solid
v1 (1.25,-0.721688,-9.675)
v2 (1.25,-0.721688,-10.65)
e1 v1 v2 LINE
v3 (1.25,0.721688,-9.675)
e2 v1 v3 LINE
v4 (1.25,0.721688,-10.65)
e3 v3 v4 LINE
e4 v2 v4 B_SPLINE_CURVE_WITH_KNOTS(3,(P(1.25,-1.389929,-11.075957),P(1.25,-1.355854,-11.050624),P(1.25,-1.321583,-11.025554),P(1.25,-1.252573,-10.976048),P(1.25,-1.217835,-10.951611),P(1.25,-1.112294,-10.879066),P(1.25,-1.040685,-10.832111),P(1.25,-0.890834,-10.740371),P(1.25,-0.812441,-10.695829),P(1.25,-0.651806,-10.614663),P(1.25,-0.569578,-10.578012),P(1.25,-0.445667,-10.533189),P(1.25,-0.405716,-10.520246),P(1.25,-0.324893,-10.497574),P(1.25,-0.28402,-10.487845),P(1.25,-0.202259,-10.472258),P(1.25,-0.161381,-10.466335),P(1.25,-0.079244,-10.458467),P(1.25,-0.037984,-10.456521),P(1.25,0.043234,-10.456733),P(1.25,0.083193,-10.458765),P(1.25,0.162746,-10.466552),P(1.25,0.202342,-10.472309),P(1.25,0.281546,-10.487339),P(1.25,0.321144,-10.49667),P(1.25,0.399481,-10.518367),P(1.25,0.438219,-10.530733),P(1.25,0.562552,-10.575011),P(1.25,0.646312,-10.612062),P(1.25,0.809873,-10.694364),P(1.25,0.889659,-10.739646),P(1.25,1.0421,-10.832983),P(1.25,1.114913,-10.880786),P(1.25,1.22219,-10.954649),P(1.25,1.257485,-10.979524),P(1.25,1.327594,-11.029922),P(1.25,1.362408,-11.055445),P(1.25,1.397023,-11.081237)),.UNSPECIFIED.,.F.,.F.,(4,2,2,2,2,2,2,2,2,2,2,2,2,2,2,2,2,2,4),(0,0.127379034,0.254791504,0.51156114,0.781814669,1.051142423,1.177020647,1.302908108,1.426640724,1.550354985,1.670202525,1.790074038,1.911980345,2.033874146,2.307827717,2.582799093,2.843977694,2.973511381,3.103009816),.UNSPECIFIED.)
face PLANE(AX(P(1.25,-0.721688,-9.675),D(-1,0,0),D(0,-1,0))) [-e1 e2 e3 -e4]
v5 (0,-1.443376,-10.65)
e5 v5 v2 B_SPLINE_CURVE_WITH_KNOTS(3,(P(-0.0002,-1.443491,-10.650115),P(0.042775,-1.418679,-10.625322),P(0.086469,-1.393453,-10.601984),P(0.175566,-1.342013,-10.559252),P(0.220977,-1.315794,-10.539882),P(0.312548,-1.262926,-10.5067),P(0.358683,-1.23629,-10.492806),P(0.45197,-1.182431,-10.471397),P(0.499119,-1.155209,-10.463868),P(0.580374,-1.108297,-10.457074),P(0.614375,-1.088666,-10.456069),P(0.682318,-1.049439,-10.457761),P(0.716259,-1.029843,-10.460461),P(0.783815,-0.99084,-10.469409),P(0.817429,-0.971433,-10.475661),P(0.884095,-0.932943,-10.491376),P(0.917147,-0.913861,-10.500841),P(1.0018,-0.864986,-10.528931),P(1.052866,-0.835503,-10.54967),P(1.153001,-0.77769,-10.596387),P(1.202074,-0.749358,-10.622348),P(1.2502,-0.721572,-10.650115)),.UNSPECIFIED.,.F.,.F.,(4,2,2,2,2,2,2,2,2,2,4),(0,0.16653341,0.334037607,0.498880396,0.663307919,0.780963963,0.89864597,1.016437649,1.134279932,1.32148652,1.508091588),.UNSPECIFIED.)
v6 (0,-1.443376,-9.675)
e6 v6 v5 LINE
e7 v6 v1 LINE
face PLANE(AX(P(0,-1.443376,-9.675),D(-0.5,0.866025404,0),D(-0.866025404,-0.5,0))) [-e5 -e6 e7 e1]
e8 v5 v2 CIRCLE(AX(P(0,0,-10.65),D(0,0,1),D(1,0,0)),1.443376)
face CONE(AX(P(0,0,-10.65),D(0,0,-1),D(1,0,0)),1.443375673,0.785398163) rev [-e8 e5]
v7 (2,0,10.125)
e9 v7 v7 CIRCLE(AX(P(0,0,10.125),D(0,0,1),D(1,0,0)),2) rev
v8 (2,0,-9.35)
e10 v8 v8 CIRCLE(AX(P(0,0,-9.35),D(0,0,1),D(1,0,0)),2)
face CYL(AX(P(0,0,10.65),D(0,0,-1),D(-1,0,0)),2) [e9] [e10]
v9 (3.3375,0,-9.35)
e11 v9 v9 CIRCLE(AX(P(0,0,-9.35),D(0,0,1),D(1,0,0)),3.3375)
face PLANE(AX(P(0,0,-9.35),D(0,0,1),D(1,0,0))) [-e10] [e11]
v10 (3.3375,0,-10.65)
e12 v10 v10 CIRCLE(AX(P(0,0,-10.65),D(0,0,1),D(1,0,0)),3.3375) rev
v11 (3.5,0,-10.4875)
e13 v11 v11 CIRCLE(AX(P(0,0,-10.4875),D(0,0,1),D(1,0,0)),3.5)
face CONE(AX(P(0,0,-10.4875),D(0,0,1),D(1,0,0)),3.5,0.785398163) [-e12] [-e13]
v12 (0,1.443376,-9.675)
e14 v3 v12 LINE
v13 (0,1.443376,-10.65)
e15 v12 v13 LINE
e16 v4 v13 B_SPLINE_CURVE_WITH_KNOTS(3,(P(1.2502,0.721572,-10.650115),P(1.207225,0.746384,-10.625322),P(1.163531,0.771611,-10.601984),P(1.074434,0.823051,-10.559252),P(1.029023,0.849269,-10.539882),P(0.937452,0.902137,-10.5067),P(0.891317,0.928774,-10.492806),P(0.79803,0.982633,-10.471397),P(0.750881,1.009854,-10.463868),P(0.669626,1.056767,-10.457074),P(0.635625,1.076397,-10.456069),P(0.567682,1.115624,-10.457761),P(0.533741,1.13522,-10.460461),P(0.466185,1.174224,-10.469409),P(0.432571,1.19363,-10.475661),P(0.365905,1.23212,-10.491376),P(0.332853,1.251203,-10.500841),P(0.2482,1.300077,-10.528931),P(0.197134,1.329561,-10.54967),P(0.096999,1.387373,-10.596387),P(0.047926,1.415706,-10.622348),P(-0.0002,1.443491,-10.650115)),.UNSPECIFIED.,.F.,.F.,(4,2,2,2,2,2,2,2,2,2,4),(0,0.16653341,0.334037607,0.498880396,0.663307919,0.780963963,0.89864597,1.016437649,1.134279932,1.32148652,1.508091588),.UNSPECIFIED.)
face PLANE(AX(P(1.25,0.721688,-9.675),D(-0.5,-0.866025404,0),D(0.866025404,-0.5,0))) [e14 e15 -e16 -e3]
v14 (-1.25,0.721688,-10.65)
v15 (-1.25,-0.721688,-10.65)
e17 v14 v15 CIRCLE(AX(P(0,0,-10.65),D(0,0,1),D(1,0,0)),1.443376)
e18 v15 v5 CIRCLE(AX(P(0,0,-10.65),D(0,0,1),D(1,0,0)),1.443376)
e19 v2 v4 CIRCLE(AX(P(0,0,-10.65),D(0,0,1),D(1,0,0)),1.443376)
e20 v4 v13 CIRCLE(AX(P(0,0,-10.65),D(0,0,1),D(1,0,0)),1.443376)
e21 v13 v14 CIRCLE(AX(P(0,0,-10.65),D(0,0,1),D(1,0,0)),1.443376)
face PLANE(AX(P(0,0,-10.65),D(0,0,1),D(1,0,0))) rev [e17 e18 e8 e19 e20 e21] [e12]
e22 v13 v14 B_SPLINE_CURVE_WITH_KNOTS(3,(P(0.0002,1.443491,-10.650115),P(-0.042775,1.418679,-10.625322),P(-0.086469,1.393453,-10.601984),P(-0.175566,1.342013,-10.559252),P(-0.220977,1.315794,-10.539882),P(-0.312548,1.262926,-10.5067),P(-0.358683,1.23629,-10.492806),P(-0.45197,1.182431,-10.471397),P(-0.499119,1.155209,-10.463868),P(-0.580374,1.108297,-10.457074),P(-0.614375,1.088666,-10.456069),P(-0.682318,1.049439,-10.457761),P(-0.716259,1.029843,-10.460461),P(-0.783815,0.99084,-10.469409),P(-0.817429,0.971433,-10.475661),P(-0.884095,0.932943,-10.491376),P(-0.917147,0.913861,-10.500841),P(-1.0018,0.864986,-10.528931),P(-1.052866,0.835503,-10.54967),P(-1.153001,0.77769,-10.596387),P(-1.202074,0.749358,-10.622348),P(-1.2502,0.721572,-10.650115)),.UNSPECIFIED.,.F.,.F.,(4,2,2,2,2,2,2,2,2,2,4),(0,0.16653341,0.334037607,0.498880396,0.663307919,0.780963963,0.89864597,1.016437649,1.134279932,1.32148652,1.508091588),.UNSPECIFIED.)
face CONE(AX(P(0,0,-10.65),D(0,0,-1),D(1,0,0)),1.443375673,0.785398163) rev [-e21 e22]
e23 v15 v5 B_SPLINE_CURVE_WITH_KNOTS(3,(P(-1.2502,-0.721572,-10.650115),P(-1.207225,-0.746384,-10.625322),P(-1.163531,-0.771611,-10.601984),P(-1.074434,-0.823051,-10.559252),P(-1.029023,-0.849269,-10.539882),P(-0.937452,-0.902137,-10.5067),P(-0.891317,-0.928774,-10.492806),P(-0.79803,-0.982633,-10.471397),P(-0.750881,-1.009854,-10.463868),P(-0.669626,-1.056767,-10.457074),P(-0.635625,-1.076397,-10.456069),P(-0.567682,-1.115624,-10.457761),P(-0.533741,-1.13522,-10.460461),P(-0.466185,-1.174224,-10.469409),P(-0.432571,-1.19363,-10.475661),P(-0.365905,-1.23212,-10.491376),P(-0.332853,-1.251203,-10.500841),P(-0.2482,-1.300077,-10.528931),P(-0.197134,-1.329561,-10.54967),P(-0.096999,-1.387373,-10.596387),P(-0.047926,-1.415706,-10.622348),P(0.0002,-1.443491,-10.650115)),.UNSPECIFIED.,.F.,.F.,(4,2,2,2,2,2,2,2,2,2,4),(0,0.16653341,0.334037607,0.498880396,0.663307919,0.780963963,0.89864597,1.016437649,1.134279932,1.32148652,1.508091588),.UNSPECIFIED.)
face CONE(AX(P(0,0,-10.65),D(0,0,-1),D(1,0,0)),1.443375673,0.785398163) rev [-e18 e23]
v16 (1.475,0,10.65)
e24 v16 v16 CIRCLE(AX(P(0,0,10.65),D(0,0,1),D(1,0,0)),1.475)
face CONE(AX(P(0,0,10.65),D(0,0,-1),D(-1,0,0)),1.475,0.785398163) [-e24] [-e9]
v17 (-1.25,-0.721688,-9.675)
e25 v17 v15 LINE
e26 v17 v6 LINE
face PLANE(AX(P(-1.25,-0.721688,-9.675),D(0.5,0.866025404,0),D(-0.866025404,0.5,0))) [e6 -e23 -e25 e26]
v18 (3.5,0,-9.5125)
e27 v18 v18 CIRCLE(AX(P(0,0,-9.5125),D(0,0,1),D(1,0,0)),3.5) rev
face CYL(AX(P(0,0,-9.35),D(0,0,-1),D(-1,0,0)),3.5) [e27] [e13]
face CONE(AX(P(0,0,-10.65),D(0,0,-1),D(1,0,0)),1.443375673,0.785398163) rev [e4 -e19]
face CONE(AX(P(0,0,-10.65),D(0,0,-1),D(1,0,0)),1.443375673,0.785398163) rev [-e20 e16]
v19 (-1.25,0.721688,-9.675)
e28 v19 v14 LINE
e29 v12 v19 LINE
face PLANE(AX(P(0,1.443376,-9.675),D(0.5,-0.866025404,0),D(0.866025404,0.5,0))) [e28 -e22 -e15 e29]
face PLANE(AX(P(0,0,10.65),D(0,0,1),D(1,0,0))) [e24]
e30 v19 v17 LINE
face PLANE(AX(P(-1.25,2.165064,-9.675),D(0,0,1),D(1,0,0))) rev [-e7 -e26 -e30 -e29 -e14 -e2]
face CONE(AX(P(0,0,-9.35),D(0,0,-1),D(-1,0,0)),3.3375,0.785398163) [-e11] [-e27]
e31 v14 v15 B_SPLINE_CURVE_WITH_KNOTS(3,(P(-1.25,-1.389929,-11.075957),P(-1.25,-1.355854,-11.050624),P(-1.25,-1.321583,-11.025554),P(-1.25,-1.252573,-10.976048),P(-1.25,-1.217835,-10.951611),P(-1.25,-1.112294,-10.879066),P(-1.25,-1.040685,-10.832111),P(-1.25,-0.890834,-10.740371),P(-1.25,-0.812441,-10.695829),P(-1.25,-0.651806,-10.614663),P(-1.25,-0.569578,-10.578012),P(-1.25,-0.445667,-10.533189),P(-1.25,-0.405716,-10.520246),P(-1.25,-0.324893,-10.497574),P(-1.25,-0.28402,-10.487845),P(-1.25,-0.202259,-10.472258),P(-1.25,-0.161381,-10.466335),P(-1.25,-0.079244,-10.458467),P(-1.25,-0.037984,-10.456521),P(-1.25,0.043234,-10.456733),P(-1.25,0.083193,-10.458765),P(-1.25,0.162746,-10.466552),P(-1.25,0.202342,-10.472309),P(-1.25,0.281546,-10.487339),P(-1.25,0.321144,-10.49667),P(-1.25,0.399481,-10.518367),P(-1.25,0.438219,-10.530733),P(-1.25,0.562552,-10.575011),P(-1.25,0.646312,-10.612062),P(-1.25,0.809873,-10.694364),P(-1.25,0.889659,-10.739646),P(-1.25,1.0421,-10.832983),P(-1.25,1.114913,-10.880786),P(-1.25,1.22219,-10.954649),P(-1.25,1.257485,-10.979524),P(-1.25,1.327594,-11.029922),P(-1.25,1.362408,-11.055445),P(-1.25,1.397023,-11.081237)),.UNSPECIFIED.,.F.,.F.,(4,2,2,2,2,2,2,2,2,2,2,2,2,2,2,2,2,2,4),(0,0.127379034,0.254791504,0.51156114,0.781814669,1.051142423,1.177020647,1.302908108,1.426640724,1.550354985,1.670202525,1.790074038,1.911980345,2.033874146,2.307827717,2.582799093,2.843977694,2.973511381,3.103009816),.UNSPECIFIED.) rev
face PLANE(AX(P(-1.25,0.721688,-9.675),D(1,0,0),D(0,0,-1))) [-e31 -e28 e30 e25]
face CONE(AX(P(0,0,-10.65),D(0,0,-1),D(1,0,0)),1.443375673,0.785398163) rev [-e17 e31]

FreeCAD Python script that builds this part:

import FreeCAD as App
import Part
import Sketcher
Q = App.Units.Quantity


def edges_at(feature, points):
    """Names of the edges that pass closest to the given points."""
    edges = feature.Shape.Edges
    near = lambda p: min(range(len(edges)), key=lambda i: edges[i].distToShape(Part.Vertex(*p))[0])
    return sorted({f"Edge{near(p) + 1}" for p in points})


def add_polygon(sketch, points):
    """Adds a closed chain of lines whose ends are joined by coincident constraints."""
    first, n = sketch.GeometryCount, len(points)
    for a, b in zip(points, points[1:] + points[:1]):
        sketch.addGeometry(Part.LineSegment(App.Vector(*a, 0), App.Vector(*b, 0)), False)
    for i in range(n):
        sketch.addConstraint(Sketcher.Constraint("Coincident", first + i, 2, first + (i + 1) % n, 1))

doc = App.newDocument("Part")
body = doc.addObject("PartDesign::Body", "Body")

sketch1 = body.newObject("Sketcher::SketchObject", "Sketch")
sketch1.AttachmentSupport = (doc.getObject("XY_Plane"), [""])
sketch1.MapMode = "FlatFace"
sketch1.AttachmentOffset = App.Placement(App.Vector(0, 0, -9.35), App.Rotation())
sketch1.addGeometry(Part.Circle(App.Vector(0, 0, 0), App.Vector(0, 0, 1), 2), False)
sketch1.addConstraint([
    Sketcher.Constraint("Coincident", 0, 3, -1, 1),
    Sketcher.Constraint("Diameter", 0, Q("4 mm")),
])
pad1 = body.newObject("PartDesign::Pad", "Pad")
pad1.Profile = sketch1
pad1.Length = 20

sketch2 = body.newObject("Sketcher::SketchObject", "Sketch001")
sketch2.AttachmentSupport = (doc.getObject("XY_Plane"), [""])
sketch2.MapMode = "FlatFace"
sketch2.AttachmentOffset = App.Placement(App.Vector(0, 0, -10.65), App.Rotation())
sketch2.addGeometry(Part.Circle(App.Vector(0, 0, 0), App.Vector(0, 0, 1), 3.5), False)
sketch2.addConstraint([
    Sketcher.Constraint("Coincident", 0, 3, -1, 1),
    Sketcher.Constraint("Diameter", 0, Q("7 mm")),
])
pad2 = body.newObject("PartDesign::Pad", "Pad001")
pad2.Profile = sketch2
pad2.Length = 1.3

sketch3 = body.newObject("Sketcher::SketchObject", "Sketch002")
sketch3.AttachmentSupport = (doc.getObject("XY_Plane"), [""])
sketch3.MapMode = "FlatFace"
sketch3.AttachmentOffset = App.Placement(App.Vector(0, 0, -10.65), App.Rotation())
add_polygon(sketch3, [(0, 1.4), (-1.2, 0.7), (-1.2, -0.7), (0, -1.4), (1.2, -0.7), (1.2, 0.7)])
sketch3.addConstraint([
    Sketcher.Constraint("Vertical", 1),
    Sketcher.Constraint("Vertical", 4),
    Sketcher.Constraint("Symmetric", 0, 2, 3, 2, -1, 1),
    Sketcher.Constraint("Symmetric", 2, 2, 5, 2, -1, 1),
    Sketcher.Constraint("PointOnObject", 2, 2, -2),
    Sketcher.Constraint("Parallel", 2, 5),
    Sketcher.Constraint("Horizontal", 1, 2, 3, 2),
    Sketcher.Constraint("Angle", 0, Q("-150 deg")),
    Sketcher.Constraint("DistanceX", 1, 2, 3, 2, Q("2.5 mm")),
    Sketcher.Constraint("DistanceY", 1, 2, 1, 1, Q("1.443376 mm")),
])
pocket1 = body.newObject("PartDesign::Pocket", "Pocket")
pocket1.Profile = sketch3
pocket1.Length = 0.975
pocket1.Reversed = True

sketch4 = body.newObject("Sketcher::SketchObject", "Sketch003")
sketch4.AttachmentSupport = (doc.getObject("XY_Plane"), [""])
sketch4.MapMode = "FlatFace"
sketch4.AttachmentOffset = App.Placement(App.Vector(0, 0, -10.65), App.Rotation())
sketch4.addGeometry(Part.Circle(App.Vector(0, 0, 0), App.Vector(0, 0, 1), 1.4), False)
sketch4.addConstraint([
    Sketcher.Constraint("Coincident", 0, 3, -1, 1),
    Sketcher.Constraint("Diameter", 0, Q("2.886751 mm")),
])
pocket2 = body.newObject("PartDesign::Pocket", "Pocket001")
pocket2.Profile = sketch4
pocket2.Length = 0.975
pocket2.Reversed = True
pocket2.TaperAngle = -45
doc.recompute()

chamfer = body.newObject("PartDesign::Chamfer", "Chamfer")
chamfer.Base = (pocket2, edges_at(pocket2, [(-3.5, 0, -9.35), (-3.5, 0, -10.65)]))
chamfer.Size = 0.1625
doc.recompute()

chamfer2 = body.newObject("PartDesign::Chamfer", "Chamfer001")
chamfer2.Base = (chamfer, edges_at(chamfer, [(-2, 0, 10.65)]))
chamfer2.Size = 0.525

doc.recompute()
